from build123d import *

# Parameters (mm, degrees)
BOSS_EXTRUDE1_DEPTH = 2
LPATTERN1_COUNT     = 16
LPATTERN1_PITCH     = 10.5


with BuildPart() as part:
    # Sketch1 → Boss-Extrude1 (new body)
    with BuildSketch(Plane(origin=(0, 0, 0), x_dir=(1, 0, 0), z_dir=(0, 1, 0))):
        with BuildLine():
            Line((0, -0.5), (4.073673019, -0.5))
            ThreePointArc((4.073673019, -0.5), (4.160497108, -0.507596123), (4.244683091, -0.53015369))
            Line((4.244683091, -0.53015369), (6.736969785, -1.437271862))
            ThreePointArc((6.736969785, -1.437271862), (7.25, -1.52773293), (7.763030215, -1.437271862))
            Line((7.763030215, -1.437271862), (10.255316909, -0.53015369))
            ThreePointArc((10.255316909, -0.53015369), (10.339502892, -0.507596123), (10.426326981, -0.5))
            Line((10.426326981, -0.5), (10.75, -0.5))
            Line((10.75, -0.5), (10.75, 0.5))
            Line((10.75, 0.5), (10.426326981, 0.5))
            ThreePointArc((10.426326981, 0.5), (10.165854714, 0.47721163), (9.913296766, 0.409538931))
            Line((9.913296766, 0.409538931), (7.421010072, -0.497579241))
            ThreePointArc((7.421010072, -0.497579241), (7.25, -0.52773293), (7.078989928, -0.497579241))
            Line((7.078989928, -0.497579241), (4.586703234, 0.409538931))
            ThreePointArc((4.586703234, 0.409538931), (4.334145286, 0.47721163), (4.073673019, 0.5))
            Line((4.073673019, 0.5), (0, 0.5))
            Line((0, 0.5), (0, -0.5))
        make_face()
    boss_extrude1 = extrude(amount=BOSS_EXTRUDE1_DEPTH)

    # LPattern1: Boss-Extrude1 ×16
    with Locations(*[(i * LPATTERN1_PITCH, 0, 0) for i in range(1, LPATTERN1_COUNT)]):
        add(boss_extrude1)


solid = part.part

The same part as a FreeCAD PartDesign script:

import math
import FreeCAD as App
import Part
import Sketcher

V = App.Vector
Q = App.Units.Quantity

doc = App.newDocument("Part")
params = doc.addObject("Spreadsheet::Sheet", "Params")
for row, (alias, value) in enumerate([
    ("sketch1_radius", "0.5 mm"),
    ("sketch1_radius2", "1.5 mm"),
    ("pad1_length", "2 mm"),
    ("linearpattern_pitch", "10.5 mm"),
], start=1):
    params.set(f"A{row}", alias)
    params.set(f"B{row}", "=" + value)
    params.setAlias(f"B{row}", alias)

body = doc.addObject("PartDesign::Body", "Body")

sketch1 = doc.addObject("Sketcher::SketchObject", "Sketch")
body.addObject(sketch1)
sketch1.AttachmentSupport = (doc.XZ_Plane, [""])
sketch1.MapMode = "FlatFace"
sketch1.addGeometry([
    Part.LineSegment(V(0, 0.5, 0), V(4.073673, 0.5, 0)),
    Part.ArcOfCircle(Part.Circle(V(4.073673, 1, 0), V(0, 0, 1), 0.5), math.radians(-90.000001), math.radians(-69.999999)),
    Part.LineSegment(V(4.244683, 0.530154, 0), V(6.73697, 1.437272, 0)),
    Part.ArcOfCircle(Part.Circle(V(7.25, 0.027733, 0), V(0, 0, 1), 1.5), math.radians(70), math.radians(110)),
    Part.LineSegment(V(7.76303, 1.437272, 0), V(10.255317, 0.530154, 0)),
    Part.ArcOfCircle(Part.Circle(V(10.426327, 1, 0), V(0, 0, 1), 0.5), math.radians(-110.000001), math.radians(-89.999999)),
    Part.LineSegment(V(10.426327, 0.5, 0), V(10.75, 0.5, 0)),
    Part.LineSegment(V(10.75, 0.5, 0), V(10.75, -0.5, 0)),
    Part.LineSegment(V(10.75, -0.5, 0), V(10.426327, -0.5, 0)),
    Part.ArcOfCircle(Part.Circle(V(10.426327, 1, 0), V(0, 0, 1), 1.5), math.radians(-110), math.radians(-90)),
    Part.LineSegment(V(9.913297, -0.409539, 0), V(7.42101, 0.497579, 0)),
    Part.ArcOfCircle(Part.Circle(V(7.25, 0.027733, 0), V(0, 0, 1), 0.5), math.radians(70), math.radians(110)),
    Part.LineSegment(V(7.07899, 0.497579, 0), V(4.586703, -0.409539, 0)),
    Part.ArcOfCircle(Part.Circle(V(4.073673, 1, 0), V(0, 0, 1), 1.5), math.radians(-90), math.radians(-70)),
    Part.LineSegment(V(4.073673, -0.5, 0), V(0, -0.5, 0)),
    Part.LineSegment(V(0, -0.5, 0), V(0, 0.5, 0)),
], False)
sketch1.addConstraint([
    Sketcher.Constraint("Tangent", 0, 2, 1, 1),
    Sketcher.Constraint("Tangent", 1, 2, 2, 1),
    Sketcher.Constraint("Tangent", 2, 2, 3, 2),
    Sketcher.Constraint("Tangent", 3, 1, 4, 1),
    Sketcher.Constraint("Tangent", 4, 2, 5, 1),
    Sketcher.Constraint("Tangent", 5, 2, 6, 1),
    Sketcher.Constraint("Coincident", 6, 2, 7, 1),
    Sketcher.Constraint("Coincident", 7, 2, 8, 1),
    Sketcher.Constraint("Tangent", 8, 2, 9, 2),
    Sketcher.Constraint("Tangent", 9, 1, 10, 1),
    Sketcher.Constraint("Tangent", 10, 2, 11, 1),
    Sketcher.Constraint("Tangent", 11, 2, 12, 1),
    Sketcher.Constraint("Tangent", 12, 2, 13, 2),
    Sketcher.Constraint("Tangent", 13, 1, 14, 1),
    Sketcher.Constraint("Coincident", 14, 2, 15, 1),
    Sketcher.Constraint("Coincident", 15, 2, 0, 1),
    Sketcher.Constraint("Horizontal", 0),
    Sketcher.Constraint("Horizontal", 6),
    Sketcher.Constraint("Vertical", 7),
    Sketcher.Constraint("Horizontal", 8),
    Sketcher.Constraint("Horizontal", 14),
    Sketcher.Constraint("Vertical", 15),
    Sketcher.Constraint("Coincident", 9, 3, 5, 3),
    Sketcher.Constraint("Coincident", 11, 3, 3, 3),
    Sketcher.Constraint("Coincident", 13, 3, 1, 3),
    Sketcher.Constraint("Equal", 1, 5),
    Sketcher.Constraint("Equal", 3, 9),
    Sketcher.Constraint("Equal", 5, 11),
    Sketcher.Constraint("Equal", 9, 13),
    Sketcher.Constraint("Symmetric", 14, 2, 15, 2, -1, 1),
    Sketcher.Constraint("Horizontal", 1, 3, 5, 3),
    Sketcher.Constraint("Horizontal", 2, 2, 3, 1),
    Sketcher.Constraint("Radius", 1, Q("0.5 mm")),
    Sketcher.Constraint("Radius", 3, Q("1.5 mm")),
    Sketcher.Constraint("Angle", 2, Q("20 deg")),
    Sketcher.Constraint("DistanceX", -1, 1, 3, 3, Q("7.25 mm")),
    Sketcher.Constraint("DistanceX", -1, 1, 6, 2, Q("10.75 mm")),
    Sketcher.Constraint("DistanceX", 0, 1, 0, 2, Q("4.073673 mm")),
])
sketch1.setExpression("Constraints[32]", "Params.sketch1_radius")
sketch1.setExpression("Constraints[33]", "Params.sketch1_radius2")
pad1 = doc.addObject("PartDesign::Pad", "Pad")
body.addObject(pad1)
pad1.Profile = sketch1
pad1.setExpression("Length", "Params.pad1_length")
pad1.Reversed = True
doc.recompute()

linearpattern = doc.addObject("PartDesign::LinearPattern", "LinearPattern")
body.addObject(linearpattern)
linearpattern.Originals = [pad1]
linearpattern.Direction = (doc.X_Axis, [""])
linearpattern.Mode = "offset"
linearpattern.setExpression("Offset", "Params.linearpattern_pitch")
linearpattern.Occurrences = 16
body.Tip = linearpattern

doc.recompute()
